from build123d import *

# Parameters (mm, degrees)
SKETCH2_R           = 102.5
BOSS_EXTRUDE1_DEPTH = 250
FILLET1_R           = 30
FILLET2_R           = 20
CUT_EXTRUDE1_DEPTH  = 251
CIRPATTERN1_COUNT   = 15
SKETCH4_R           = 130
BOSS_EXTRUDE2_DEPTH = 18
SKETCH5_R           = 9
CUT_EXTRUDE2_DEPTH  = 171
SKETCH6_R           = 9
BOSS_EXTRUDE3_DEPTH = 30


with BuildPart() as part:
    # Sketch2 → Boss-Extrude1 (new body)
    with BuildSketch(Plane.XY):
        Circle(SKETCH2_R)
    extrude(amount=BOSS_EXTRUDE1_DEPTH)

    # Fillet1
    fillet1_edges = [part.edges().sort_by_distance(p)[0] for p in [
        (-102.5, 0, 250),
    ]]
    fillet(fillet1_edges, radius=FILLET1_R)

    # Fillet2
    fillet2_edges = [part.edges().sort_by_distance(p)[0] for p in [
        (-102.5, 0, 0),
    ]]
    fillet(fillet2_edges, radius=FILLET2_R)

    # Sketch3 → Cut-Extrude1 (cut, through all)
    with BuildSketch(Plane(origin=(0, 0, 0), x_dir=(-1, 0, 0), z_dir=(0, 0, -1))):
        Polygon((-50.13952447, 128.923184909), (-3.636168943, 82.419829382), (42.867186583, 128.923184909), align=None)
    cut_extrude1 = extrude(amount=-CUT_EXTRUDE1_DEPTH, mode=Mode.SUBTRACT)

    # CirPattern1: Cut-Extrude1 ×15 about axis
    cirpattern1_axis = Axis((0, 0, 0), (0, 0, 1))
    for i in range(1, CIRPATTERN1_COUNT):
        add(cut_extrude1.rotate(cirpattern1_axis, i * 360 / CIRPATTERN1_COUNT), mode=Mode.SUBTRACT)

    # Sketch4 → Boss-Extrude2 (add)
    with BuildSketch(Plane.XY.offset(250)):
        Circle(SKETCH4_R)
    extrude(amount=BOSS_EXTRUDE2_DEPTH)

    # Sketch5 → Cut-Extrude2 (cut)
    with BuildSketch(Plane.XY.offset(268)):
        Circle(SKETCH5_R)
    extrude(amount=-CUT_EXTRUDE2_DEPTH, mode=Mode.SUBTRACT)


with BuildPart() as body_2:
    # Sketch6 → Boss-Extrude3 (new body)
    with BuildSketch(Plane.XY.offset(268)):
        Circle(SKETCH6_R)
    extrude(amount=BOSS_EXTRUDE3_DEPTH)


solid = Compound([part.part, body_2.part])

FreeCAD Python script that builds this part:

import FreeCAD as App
import Part
import Sketcher
Q = App.Units.Quantity


def edges_at(feature, points):
    """Names of the edges that pass closest to the given points."""
    edges = feature.Shape.Edges
    near = lambda p: min(range(len(edges)), key=lambda i: edges[i].distToShape(Part.Vertex(*p))[0])
    return sorted({f"Edge{near(p) + 1}" for p in points})

doc = App.newDocument("Part")
body = doc.addObject("PartDesign::Body", "Body")

# Sketch on XY plane
sketch1 = body.newObject("Sketcher::SketchObject", "Sketch")
sketch1.AttachmentSupport = (doc.getObject("XY_Plane"), [""])
sketch1.MapMode = "FlatFace"
sketch1.addGeometry(Part.Circle(App.Vector(0, 0, 0), App.Vector(0, 0, 1), 102.5), False)
sketch1.addConstraint([
    Sketcher.Constraint("Coincident", 0, 3, -1, 1),
    Sketcher.Constraint("Diameter", 0, Q("205 mm")),
])
pad1 = body.newObject("PartDesign::Pad", "Pad")
pad1.Profile = sketch1
pad1.Length = 250
doc.recompute()

fillet = body.newObject("PartDesign::Fillet", "Fillet")
fillet.Base = (pad1, edges_at(pad1, [(-102.5, 0, 250)]))
fillet.Radius = 30
doc.recompute()

fillet2 = body.newObject("PartDesign::Fillet", "Fillet001")
fillet2.Base = (fillet, edges_at(fillet, [(-102.5, 0, 0)]))
fillet2.Radius = 20

# Sketch on XY plane
sketch2 = body.newObject("Sketcher::SketchObject", "Sketch001")
sketch2.AttachmentSupport = (doc.getObject("XY_Plane"), [""])
sketch2.MapMode = "FlatFace"
sketch2.addGeometry([
    Part.LineSegment(App.Vector(50.139524, 128.923185, 0), App.Vector(3.636169, 82.419829, 0)),
    Part.LineSegment(App.Vector(3.636169, 82.419829, 0), App.Vector(-42.867187, 128.923185, 0)),
    Part.LineSegment(App.Vector(-42.867187, 128.923185, 0), App.Vector(50.139524, 128.923185, 0)),
], False)
sketch2.addConstraint([
    Sketcher.Constraint("Coincident", 0, 2, 1, 1),
    Sketcher.Constraint("Coincident", 1, 2, 2, 1),
    Sketcher.Constraint("Coincident", 2, 2, 0, 1),
    Sketcher.Constraint("Horizontal", 2),
    Sketcher.Constraint("Perpendicular", 0, 1),
    Sketcher.Constraint("Equal", 0, 1),
    Sketcher.Constraint("DistanceX", 2, 1, 2, 2, Q("93.006711 mm")),
    Sketcher.Constraint("DistanceX", -1, 1, 0, 2, Q("3.636169 mm")),
    Sketcher.Constraint("DistanceY", -1, 1, 0, 2, Q("82.419829 mm")),
])
pocket1 = body.newObject("PartDesign::Pocket", "Pocket")
pocket1.Profile = sketch2
pocket1.Type = "ThroughAll"
pocket1.Reversed = True
doc.recompute()

polarpattern = body.newObject("PartDesign::PolarPattern", "PolarPattern")
polarpattern.Originals = [pocket1]
polarpattern.Axis = (doc.getObject("Z_Axis"), [""])
polarpattern.Angle = 360
polarpattern.Occurrences = 15
body.Tip = polarpattern

# Sketch on XY plane
sketch3 = body.newObject("Sketcher::SketchObject", "Sketch002")
sketch3.AttachmentSupport = (doc.getObject("XY_Plane"), [""])
sketch3.MapMode = "FlatFace"
sketch3.AttachmentOffset = App.Placement(App.Vector(0, 0, 250), App.Rotation())
sketch3.addGeometry(Part.Circle(App.Vector(0, 0, 0), App.Vector(0, 0, 1), 130), False)
sketch3.addConstraint([
    Sketcher.Constraint("Coincident", 0, 3, -1, 1),
    Sketcher.Constraint("Diameter", 0, Q("260 mm")),
])
pad2 = body.newObject("PartDesign::Pad", "Pad001")
pad2.Profile = sketch3
pad2.Length = 18

# Sketch on XY plane
sketch4 = body.newObject("Sketcher::SketchObject", "Sketch003")
sketch4.AttachmentSupport = (doc.getObject("XY_Plane"), [""])
sketch4.MapMode = "FlatFace"
sketch4.AttachmentOffset = App.Placement(App.Vector(0, 0, 268), App.Rotation())
sketch4.addGeometry(Part.Circle(App.Vector(0, 0, 0), App.Vector(0, 0, 1), 9), False)
sketch4.addConstraint([
    Sketcher.Constraint("Coincident", 0, 3, -1, 1),
    Sketcher.Constraint("Diameter", 0, Q("18 mm")),
])
pocket2 = body.newObject("PartDesign::Pocket", "Pocket001")
pocket2.Profile = sketch4
pocket2.Length = 171
body2 = doc.addObject("PartDesign::Body", "Body001")

# Sketch on XY plane
sketch5 = body2.newObject("Sketcher::SketchObject", "Sketch004")
sketch5.AttachmentSupport = (doc.getObject("XY_Plane001"), [""])
sketch5.MapMode = "FlatFace"
sketch5.AttachmentOffset = App.Placement(App.Vector(0, 0, 268), App.Rotation())
sketch5.addGeometry(Part.Circle(App.Vector(0, 0, 0), App.Vector(0, 0, 1), 9), False)
sketch5.addConstraint([
    Sketcher.Constraint("Coincident", 0, 3, -1, 1),
    Sketcher.Constraint("Diameter", 0, Q("18 mm")),
])
pad3 = body2.newObject("PartDesign::Pad", "Pad002")
pad3.Profile = sketch5
pad3.Length = 30

doc.recompute()
